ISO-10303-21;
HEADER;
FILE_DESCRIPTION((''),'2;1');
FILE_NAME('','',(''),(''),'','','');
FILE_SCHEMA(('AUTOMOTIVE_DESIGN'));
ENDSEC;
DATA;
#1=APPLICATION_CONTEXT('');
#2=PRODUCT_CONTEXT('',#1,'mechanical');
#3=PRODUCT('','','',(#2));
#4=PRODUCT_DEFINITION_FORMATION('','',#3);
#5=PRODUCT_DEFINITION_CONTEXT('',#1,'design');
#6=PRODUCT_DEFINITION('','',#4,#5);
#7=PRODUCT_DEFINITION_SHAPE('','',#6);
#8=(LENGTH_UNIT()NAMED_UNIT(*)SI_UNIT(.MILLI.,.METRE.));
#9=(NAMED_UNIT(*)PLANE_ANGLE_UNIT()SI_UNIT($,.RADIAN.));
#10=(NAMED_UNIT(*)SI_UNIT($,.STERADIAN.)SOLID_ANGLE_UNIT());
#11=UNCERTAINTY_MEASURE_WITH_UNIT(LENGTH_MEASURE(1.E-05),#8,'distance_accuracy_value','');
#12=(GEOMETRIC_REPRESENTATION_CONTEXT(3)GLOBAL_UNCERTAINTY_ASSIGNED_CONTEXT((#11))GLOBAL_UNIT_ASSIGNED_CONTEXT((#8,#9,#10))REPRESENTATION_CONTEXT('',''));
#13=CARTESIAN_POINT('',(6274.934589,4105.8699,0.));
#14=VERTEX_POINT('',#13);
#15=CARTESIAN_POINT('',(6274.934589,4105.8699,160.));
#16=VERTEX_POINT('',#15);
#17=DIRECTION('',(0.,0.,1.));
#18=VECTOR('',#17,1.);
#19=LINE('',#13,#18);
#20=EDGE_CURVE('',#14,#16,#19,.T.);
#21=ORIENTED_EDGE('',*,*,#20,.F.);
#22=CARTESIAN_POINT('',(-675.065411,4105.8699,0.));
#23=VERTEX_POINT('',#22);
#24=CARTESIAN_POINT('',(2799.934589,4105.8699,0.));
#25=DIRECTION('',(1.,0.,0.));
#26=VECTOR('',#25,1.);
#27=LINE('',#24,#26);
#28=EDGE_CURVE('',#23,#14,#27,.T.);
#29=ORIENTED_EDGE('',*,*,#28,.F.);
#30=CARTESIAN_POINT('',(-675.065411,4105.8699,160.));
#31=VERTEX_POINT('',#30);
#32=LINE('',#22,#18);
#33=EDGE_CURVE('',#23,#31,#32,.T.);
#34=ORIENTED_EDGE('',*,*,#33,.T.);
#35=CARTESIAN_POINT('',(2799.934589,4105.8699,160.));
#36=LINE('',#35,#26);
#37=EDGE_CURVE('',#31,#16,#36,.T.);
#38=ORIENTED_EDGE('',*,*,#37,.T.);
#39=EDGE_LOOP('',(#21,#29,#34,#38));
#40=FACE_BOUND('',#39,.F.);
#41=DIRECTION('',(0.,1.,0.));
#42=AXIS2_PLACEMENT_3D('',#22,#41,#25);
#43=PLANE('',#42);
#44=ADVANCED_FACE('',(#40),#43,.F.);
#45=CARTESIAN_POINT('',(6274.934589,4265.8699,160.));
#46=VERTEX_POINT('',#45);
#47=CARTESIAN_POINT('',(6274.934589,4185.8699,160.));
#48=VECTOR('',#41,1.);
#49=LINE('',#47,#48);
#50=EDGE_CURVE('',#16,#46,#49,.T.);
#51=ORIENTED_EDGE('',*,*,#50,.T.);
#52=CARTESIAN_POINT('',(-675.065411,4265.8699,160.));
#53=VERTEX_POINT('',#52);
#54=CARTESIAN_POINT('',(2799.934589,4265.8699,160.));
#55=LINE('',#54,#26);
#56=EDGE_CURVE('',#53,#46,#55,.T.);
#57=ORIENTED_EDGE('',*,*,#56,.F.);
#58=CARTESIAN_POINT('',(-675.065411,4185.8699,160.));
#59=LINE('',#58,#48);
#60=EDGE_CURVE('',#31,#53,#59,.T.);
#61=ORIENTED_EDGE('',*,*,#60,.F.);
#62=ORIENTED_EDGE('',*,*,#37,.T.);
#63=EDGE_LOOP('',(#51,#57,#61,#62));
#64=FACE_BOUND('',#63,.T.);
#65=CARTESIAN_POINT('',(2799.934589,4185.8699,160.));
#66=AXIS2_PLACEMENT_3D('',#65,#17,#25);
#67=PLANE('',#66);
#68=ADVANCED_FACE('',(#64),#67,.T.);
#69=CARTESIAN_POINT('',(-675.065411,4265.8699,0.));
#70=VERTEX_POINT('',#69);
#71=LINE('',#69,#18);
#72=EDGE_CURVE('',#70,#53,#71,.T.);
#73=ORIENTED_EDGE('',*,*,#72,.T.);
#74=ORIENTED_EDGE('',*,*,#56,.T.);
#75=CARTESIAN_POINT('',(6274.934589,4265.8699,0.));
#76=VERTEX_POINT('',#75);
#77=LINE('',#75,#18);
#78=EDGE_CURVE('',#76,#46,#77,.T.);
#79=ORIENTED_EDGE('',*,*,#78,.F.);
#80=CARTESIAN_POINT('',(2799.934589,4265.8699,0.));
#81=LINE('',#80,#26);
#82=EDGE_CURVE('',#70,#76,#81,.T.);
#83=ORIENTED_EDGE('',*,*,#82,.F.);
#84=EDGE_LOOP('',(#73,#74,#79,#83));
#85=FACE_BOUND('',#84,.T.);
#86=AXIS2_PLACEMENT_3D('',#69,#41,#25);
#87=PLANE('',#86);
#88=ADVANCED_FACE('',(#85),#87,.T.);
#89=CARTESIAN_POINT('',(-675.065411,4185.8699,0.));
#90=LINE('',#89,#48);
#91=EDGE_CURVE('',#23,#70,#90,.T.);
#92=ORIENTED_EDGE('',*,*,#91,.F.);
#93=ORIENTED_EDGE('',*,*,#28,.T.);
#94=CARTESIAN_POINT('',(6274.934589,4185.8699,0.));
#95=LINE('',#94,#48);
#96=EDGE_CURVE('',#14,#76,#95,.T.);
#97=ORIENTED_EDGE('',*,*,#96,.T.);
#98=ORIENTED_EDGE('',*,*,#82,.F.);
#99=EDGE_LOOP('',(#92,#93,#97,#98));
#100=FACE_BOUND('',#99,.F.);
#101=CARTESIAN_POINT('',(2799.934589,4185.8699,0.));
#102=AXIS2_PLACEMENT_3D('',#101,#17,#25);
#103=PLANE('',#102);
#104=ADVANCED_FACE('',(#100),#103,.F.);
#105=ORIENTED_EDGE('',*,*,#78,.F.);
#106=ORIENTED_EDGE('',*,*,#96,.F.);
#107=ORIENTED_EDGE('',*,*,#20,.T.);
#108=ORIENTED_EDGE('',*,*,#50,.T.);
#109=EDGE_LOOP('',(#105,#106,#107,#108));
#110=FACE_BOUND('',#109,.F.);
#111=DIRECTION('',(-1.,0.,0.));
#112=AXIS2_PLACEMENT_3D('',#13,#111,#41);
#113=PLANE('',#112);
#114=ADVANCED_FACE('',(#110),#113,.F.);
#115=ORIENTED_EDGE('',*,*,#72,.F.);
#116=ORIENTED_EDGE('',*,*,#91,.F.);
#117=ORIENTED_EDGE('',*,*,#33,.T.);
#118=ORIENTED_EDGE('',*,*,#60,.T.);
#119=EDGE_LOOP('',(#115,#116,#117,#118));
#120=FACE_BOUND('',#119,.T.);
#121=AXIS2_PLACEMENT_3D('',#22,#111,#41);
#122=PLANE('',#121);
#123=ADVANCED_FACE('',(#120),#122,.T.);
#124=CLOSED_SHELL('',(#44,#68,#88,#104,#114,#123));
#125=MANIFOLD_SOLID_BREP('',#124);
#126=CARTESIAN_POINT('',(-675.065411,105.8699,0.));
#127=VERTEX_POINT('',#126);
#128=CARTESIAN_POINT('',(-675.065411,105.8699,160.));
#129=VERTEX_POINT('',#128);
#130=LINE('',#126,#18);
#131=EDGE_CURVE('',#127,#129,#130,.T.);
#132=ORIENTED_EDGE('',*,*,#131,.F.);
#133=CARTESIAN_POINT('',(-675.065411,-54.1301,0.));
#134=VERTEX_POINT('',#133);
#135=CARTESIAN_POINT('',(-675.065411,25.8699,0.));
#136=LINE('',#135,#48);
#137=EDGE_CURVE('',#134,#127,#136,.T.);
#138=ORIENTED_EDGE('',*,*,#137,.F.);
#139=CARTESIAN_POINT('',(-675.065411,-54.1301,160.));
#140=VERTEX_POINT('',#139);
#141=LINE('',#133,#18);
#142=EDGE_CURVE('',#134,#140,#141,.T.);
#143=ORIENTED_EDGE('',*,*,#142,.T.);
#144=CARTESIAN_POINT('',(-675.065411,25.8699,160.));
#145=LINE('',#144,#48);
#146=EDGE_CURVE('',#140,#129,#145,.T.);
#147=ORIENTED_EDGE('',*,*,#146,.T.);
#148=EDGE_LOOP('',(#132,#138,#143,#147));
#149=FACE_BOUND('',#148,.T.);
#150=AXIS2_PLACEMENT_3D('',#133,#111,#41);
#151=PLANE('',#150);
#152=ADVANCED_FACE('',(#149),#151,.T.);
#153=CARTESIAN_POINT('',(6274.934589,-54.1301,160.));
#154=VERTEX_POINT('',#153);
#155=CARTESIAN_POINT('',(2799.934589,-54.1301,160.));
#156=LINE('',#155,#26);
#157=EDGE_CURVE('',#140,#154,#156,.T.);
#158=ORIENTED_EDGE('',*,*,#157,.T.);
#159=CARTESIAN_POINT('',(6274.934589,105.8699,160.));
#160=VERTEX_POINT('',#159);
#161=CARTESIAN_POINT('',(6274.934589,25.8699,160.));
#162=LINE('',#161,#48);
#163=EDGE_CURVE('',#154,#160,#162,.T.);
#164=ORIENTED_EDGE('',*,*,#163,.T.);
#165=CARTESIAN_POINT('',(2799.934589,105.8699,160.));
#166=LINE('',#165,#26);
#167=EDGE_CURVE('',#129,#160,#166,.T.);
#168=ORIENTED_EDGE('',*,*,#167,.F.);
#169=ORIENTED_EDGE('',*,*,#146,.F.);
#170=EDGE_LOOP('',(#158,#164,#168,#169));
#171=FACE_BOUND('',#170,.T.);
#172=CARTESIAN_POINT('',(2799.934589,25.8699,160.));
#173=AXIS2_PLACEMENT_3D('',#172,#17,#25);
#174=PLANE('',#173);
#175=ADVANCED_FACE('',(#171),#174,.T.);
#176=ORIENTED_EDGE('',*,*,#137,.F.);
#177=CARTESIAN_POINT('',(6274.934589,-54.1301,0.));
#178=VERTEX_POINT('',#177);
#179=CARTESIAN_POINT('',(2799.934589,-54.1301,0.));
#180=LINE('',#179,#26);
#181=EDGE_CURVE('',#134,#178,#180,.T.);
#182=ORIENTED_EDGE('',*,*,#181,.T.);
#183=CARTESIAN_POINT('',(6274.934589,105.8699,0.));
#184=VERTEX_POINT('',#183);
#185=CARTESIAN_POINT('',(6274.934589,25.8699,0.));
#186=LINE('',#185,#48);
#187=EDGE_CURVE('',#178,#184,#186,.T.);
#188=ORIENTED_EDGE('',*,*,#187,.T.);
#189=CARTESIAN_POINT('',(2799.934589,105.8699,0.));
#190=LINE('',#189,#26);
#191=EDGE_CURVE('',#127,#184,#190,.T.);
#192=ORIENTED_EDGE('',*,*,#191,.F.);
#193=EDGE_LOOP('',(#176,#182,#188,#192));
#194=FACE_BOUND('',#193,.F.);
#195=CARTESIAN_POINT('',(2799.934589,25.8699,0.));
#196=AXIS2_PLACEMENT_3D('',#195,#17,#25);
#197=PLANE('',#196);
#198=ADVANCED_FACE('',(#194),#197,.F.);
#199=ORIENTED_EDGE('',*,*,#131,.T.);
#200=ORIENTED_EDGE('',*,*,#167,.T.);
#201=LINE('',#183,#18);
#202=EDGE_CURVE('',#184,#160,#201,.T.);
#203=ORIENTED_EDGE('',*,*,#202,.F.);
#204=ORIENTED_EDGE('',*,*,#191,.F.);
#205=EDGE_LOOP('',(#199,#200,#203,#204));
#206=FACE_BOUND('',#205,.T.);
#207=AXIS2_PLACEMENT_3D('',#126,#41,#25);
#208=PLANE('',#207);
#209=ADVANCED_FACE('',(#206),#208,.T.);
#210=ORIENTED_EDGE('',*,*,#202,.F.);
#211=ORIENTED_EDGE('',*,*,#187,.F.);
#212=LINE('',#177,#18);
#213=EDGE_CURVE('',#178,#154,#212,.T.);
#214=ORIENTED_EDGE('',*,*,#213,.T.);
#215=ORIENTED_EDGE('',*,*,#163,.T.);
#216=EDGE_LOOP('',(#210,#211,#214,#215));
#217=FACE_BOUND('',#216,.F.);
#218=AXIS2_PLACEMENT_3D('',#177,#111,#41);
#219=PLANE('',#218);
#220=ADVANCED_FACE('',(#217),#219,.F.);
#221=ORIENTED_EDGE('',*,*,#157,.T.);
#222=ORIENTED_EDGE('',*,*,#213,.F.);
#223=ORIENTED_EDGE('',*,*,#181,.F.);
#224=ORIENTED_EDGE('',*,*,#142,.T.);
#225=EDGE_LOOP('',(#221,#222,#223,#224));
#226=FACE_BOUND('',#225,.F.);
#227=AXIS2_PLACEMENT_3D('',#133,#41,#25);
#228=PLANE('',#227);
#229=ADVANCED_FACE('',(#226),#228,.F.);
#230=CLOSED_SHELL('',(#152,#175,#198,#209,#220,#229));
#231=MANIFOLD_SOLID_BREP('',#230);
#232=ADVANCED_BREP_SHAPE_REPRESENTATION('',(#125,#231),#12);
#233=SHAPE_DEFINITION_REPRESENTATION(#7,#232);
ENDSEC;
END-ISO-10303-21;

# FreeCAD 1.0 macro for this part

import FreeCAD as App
import Part
import Sketcher

V = App.Vector
Q = App.Units.Quantity


def add_polygon(sketch, points):
    """Adds a closed chain of lines whose ends are joined by coincident constraints."""
    first, n = sketch.GeometryCount, len(points)
    for a, b in zip(points, points[1:] + points[:1]):
        sketch.addGeometry(Part.LineSegment(App.Vector(*a, 0), App.Vector(*b, 0)), False)
    for i in range(n):
        sketch.addConstraint(Sketcher.Constraint("Coincident", first + i, 2, first + (i + 1) % n, 1))

doc = App.newDocument("Part")
body = doc.addObject("PartDesign::Body", "Body")

# Sketch on XY plane
sketch1 = body.newObject("Sketcher::SketchObject", "Sketch")
sketch1.AttachmentSupport = (doc.getObject("XY_Plane"), [""])
sketch1.MapMode = "FlatFace"
add_polygon(sketch1, [(-39.6, 50.1), (-39.6, 45.3), (61.5, 45.3), (61.5, 50.1)])  # lines 0-3
sketch1.addConstraint([
    Sketcher.Constraint("Vertical", 0),
    Sketcher.Constraint("Horizontal", 1),
    Sketcher.Constraint("Vertical", 2),
    Sketcher.Constraint("Horizontal", 3),
    Sketcher.Constraint("DistanceY", 0, 2, 0, 1, Q("0.1890001 in")),
    Sketcher.Constraint("DistanceX", 1, 1, 1, 2, Q("3.9795001 in")),
    Sketcher.Constraint("DistanceY", -1, 1, 0, 2, Q("1.785 in")),
    Sketcher.Constraint("DistanceX", 0, 2, -1, 1, 39.604951),
])
pad1 = body.newObject("PartDesign::Pad", "Pad")
pad1.Profile = sketch1
pad1.Length = Q("6 in")
body2 = doc.addObject("PartDesign::Body", "Body001")

# Sketch on XY plane
sketch2 = body2.newObject("Sketcher::SketchObject", "Sketch001")
sketch2.AttachmentSupport = (doc.getObject("XY_Plane001"), [""])
sketch2.MapMode = "FlatFace"
add_polygon(sketch2, [(-39.6, 16), (-39.6, 11.7), (61.5, 11.7), (61.5, 16)])  # lines 0-3
sketch2.addConstraint([
    Sketcher.Constraint("Vertical", 0),
    Sketcher.Constraint("Horizontal", 1),
    Sketcher.Constraint("Vertical", 2),
    Sketcher.Constraint("Horizontal", 3),
    Sketcher.Constraint("DistanceY", 0, 2, 0, 1, Q("0.1680001 in")),
    Sketcher.Constraint("DistanceY", -1, 1, 2, 2, Q("0.63 in")),
    Sketcher.Constraint("DistanceX", 1, 1, 1, 2, Q("3.9795001 in")),
    Sketcher.Constraint("DistanceX", 0, 2, -1, 1, 39.604951),
])
pad2 = body2.newObject("PartDesign::Pad", "Pad001")
pad2.Profile = sketch2
pad2.Length = Q("6 in")
body3 = doc.addObject("PartDesign::Body", "Body002")

# Sketch on XY plane
sketch3 = body3.newObject("Sketcher::SketchObject", "Sketch002")
sketch3.AttachmentSupport = (doc.getObject("XY_Plane002"), [""])
sketch3.MapMode = "FlatFace"
add_polygon(sketch3, [(-675, 4266), (-675, 4106), (6275, 4106), (6275, 4266)])  # lines 0-3
sketch3.addConstraint([
    Sketcher.Constraint("Vertical", 0),
    Sketcher.Constraint("Horizontal", 1),
    Sketcher.Constraint("Vertical", 2),
    Sketcher.Constraint("Horizontal", 3),
    Sketcher.Constraint("DistanceX", 1, 1, 1, 2, 6950.0),
    Sketcher.Constraint("DistanceY", 0, 2, 0, 1, 160.0),
    Sketcher.Constraint("DistanceY", -1, 1, 0, 2, 4105.8699),
    Sketcher.Constraint("DistanceX", 0, 2, -1, 1, 675.065411),
])
pad3 = body3.newObject("PartDesign::Pad", "Pad002")
pad3.Profile = sketch3
pad3.Length = 160
body4 = doc.addObject("PartDesign::Body", "Body003")

# Sketch on XY plane
sketch4 = body4.newObject("Sketcher::SketchObject", "Sketch003")
sketch4.AttachmentSupport = (doc.getObject("XY_Plane003"), [""])
sketch4.MapMode = "FlatFace"
add_polygon(sketch4, [(-675, 106), (-675, -54), (6275, -54), (6275, 106)])  # lines 0-3
sketch4.addConstraint([
    Sketcher.Constraint("Vertical", 0),
    Sketcher.Constraint("Horizontal", 1),
    Sketcher.Constraint("Vertical", 2),
    Sketcher.Constraint("Horizontal", 3),
    Sketcher.Constraint("DistanceX", 1, 1, 1, 2, 6950.0),
    Sketcher.Constraint("DistanceY", 0, 2, 0, 1, 160.0),
    Sketcher.Constraint("DistanceY", 0, 2, -1, 1, 54.1301),
    Sketcher.Constraint("DistanceX", 0, 2, -1, 1, 675.065411),
])
pad4 = body4.newObject("PartDesign::Pad", "Pad003")
pad4.Profile = sketch4
pad4.Length = 160
body.Visibility = False
body2.Visibility = False

doc.recompute()
